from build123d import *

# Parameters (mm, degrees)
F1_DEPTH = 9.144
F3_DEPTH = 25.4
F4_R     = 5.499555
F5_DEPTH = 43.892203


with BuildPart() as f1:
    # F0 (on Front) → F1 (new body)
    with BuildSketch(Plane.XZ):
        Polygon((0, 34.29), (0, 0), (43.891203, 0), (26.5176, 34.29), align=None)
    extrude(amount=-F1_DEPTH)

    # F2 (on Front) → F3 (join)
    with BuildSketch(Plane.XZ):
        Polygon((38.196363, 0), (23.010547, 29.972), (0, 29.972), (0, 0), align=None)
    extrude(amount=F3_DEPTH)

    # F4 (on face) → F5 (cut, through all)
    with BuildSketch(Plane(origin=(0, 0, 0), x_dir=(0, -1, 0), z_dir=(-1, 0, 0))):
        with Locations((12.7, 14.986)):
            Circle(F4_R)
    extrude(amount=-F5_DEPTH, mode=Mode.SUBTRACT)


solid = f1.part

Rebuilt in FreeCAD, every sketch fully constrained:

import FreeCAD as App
import Part
import Sketcher
from FreeCAD import Vector
Q = App.Units.Quantity


def add_polygon(sketch, points):
    """Adds a closed chain of lines whose ends are joined by coincident constraints."""
    first, n = sketch.GeometryCount, len(points)
    for a, b in zip(points, points[1:] + points[:1]):
        sketch.addGeometry(Part.LineSegment(App.Vector(*a, 0), App.Vector(*b, 0)), False)
    for i in range(n):
        sketch.addConstraint(Sketcher.Constraint("Coincident", first + i, 2, first + (i + 1) % n, 1))

doc = App.newDocument("Part")
body = doc.addObject("PartDesign::Body", "Body")

sketch1 = body.newObject("Sketcher::SketchObject", "Sketch")
sketch1.AttachmentSupport = (doc.getObject("XZ_Plane"), [""])
sketch1.MapMode = "FlatFace"
add_polygon(sketch1, [(0, 34), (0, 0), (44, 0), (27, 34)])
sketch1.addConstraint([
    Sketcher.Constraint("Vertical", 0),
    Sketcher.Constraint("Horizontal", 1),
    Sketcher.Constraint("Horizontal", 3),
    Sketcher.Constraint("Coincident", 0, 2, -1, 1),
    Sketcher.Constraint("DistanceY", 0, 2, 0, 1, Q("1.35 in")),
    Sketcher.Constraint("DistanceX", 1, 1, 1, 2, Q("1.7280001 in")),
    Sketcher.Constraint("DistanceX", 3, 2, 3, 1, Q("1.044 in")),
])
pad1 = body.newObject("PartDesign::Pad", "Pad")
pad1.Profile = sketch1
pad1.Length = Q("0.36 in")
pad1.Reversed = True

sketch2 = body.newObject("Sketcher::SketchObject", "Sketch001")
sketch2.AttachmentSupport = (doc.getObject("XZ_Plane"), [""])
sketch2.MapMode = "FlatFace"
add_polygon(sketch2, [(38, 0), (23, 30), (0, 30), (0, 0)])
sketch2.addConstraint([
    Sketcher.Constraint("Horizontal", 1),
    Sketcher.Constraint("Vertical", 2),
    Sketcher.Constraint("Horizontal", 3),
    Sketcher.Constraint("Coincident", 2, 2, -1, 1),
    Sketcher.Constraint("DistanceY", 2, 2, 2, 1, Q("1.18 in")),
    Sketcher.Constraint("Distance", 0, 33.59955),
    Sketcher.Constraint("DistanceX", 1, 2, 1, 1, 23.010547),
])
pad2 = body.newObject("PartDesign::Pad", "Pad001")
pad2.Profile = sketch2
pad2.Length = Q("1 in")

sketch3 = body.newObject("Sketcher::SketchObject", "Sketch002")
sketch3.AttachmentSupport = (doc.getObject("YZ_Plane"), [""])
sketch3.MapMode = "FlatFace"
sketch3.addGeometry(Part.Circle(Vector(-13, 15, 0), Vector(0, 0, 1), 5), False)
sketch3.addConstraint([
    Sketcher.Constraint("DistanceX", 0, 3, -1, 1, Q("0.5 in")),
    Sketcher.Constraint("DistanceY", -1, 1, 0, 3, Q("0.59 in")),
    Sketcher.Constraint("Diameter", 0, 10.99911),
])
pocket1 = body.newObject("PartDesign::Pocket", "Pocket")
pocket1.Profile = sketch3
pocket1.Type = "ThroughAll"
pocket1.Reversed = True

doc.recompute()
